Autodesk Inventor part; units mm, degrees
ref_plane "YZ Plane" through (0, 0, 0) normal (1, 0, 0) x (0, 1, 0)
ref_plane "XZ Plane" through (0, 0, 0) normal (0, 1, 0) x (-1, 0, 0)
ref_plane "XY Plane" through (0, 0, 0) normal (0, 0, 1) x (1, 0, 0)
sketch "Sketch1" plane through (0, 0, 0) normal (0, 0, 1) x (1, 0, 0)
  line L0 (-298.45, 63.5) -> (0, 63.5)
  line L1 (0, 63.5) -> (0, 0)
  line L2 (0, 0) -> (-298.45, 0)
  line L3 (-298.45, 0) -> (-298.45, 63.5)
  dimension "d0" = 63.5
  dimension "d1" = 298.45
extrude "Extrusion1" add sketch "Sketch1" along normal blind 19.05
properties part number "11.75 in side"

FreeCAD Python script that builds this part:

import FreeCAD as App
import Part
import Sketcher
from FreeCAD import Vector
Q = App.Units.Quantity


def add_polygon(sketch, points):
    """Adds a closed chain of lines whose ends are joined by coincident constraints."""
    first, n = sketch.GeometryCount, len(points)
    for a, b in zip(points, points[1:] + points[:1]):
        sketch.addGeometry(Part.LineSegment(App.Vector(*a, 0), App.Vector(*b, 0)), False)
    for i in range(n):
        sketch.addConstraint(Sketcher.Constraint("Coincident", first + i, 2, first + (i + 1) % n, 1))

doc = App.newDocument("Part")
body = doc.addObject("PartDesign::Body", "Body")

# Sketch on XY plane
sketch1 = doc.addObject("Sketcher::SketchObject", "Sketch")
body.addObject(sketch1)
sketch1.AttachmentSupport = (doc.XY_Plane, [""])
sketch1.MapMode = "FlatFace"
add_polygon(sketch1, [(0, 63.5), (-298.45, 63.5), (-298.45, 0), (0, 0)])  # lines 0-3
sketch1.addConstraint(Sketcher.Constraint("Horizontal", 0))
sketch1.addConstraint(Sketcher.Constraint("Vertical", 1))
sketch1.addConstraint(Sketcher.Constraint("Horizontal", 2))
sketch1.addConstraint(Sketcher.Constraint("Vertical", 3))
sketch1.addConstraint(Sketcher.Constraint("Coincident", 2, 2, -1, 1))
sketch1.addConstraint(Sketcher.Constraint("DistanceY", 1, 2, 1, 1, Q("2.5 in")))
sketch1.addConstraint(Sketcher.Constraint("DistanceX", 0, 2, 0, 1, Q("11.75 in")))
pad1 = doc.addObject("PartDesign::Pad", "Pad")
body.addObject(pad1)
pad1.Profile = sketch1
pad1.Length = Q("0.75 in")

doc.recompute()
